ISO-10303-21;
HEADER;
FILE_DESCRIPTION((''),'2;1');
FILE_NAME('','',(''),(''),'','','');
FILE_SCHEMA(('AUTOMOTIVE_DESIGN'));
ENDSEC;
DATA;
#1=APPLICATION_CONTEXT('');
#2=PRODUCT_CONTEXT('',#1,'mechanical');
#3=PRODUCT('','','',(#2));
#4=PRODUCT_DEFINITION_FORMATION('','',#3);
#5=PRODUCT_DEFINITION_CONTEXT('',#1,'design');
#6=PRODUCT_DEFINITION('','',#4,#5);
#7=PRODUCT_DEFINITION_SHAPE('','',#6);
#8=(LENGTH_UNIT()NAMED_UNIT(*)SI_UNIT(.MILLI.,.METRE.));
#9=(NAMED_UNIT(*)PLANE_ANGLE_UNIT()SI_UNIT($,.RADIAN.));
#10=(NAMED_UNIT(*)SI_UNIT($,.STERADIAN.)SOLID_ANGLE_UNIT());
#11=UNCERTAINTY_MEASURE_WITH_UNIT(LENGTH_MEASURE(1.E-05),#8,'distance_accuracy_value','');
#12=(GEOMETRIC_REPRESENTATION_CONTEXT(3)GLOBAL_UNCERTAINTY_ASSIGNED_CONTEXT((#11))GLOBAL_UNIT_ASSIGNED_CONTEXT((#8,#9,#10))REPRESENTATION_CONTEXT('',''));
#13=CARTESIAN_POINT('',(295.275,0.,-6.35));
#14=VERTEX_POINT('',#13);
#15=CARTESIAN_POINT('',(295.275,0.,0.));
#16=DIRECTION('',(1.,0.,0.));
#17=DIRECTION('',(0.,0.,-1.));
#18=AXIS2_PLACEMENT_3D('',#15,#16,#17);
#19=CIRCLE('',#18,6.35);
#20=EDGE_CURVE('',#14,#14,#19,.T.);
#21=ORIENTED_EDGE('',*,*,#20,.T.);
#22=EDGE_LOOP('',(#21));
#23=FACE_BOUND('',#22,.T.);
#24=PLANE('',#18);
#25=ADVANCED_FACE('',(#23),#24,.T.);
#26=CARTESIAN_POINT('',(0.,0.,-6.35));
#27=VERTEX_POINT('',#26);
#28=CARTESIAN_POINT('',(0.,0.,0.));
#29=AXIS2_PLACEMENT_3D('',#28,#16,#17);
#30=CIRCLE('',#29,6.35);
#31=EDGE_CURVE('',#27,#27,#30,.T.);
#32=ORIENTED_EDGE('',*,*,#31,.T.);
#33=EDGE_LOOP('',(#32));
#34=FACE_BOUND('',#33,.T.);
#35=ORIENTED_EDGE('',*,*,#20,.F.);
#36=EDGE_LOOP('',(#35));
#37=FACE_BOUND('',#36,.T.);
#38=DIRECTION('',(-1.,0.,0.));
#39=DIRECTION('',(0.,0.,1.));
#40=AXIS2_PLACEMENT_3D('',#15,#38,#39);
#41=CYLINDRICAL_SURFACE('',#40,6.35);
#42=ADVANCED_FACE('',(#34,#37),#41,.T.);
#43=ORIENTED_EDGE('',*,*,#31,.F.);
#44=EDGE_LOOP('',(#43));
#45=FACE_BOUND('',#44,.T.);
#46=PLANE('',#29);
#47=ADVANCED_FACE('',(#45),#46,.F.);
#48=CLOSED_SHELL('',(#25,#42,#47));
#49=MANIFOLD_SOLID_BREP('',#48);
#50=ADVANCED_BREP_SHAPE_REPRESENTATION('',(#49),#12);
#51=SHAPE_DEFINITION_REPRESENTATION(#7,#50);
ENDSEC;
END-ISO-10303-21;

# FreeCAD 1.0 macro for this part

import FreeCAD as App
import Part
import Sketcher
from FreeCAD import Vector
Q = App.Units.Quantity

doc = App.newDocument("Part")
body = doc.addObject("PartDesign::Body", "Body")

# Sketch on YZ plane
sketch1 = body.newObject("Sketcher::SketchObject", "Sketch")
sketch1.AttachmentSupport = (doc.getObject("YZ_Plane"), [""])
sketch1.MapMode = "FlatFace"
sketch1.addGeometry(Part.Circle(Vector(0, 0, 0), Vector(0, 0, 1), 6), False)
sketch1.addConstraint(Sketcher.Constraint("Coincident", 0, 3, -1, 1))
sketch1.addConstraint(Sketcher.Constraint("Diameter", 0, Q("0.5 in")))
pad1 = body.newObject("PartDesign::Pad", "Pad")
pad1.Profile = sketch1
pad1.Length = Q("11.625 in")

doc.recompute()
